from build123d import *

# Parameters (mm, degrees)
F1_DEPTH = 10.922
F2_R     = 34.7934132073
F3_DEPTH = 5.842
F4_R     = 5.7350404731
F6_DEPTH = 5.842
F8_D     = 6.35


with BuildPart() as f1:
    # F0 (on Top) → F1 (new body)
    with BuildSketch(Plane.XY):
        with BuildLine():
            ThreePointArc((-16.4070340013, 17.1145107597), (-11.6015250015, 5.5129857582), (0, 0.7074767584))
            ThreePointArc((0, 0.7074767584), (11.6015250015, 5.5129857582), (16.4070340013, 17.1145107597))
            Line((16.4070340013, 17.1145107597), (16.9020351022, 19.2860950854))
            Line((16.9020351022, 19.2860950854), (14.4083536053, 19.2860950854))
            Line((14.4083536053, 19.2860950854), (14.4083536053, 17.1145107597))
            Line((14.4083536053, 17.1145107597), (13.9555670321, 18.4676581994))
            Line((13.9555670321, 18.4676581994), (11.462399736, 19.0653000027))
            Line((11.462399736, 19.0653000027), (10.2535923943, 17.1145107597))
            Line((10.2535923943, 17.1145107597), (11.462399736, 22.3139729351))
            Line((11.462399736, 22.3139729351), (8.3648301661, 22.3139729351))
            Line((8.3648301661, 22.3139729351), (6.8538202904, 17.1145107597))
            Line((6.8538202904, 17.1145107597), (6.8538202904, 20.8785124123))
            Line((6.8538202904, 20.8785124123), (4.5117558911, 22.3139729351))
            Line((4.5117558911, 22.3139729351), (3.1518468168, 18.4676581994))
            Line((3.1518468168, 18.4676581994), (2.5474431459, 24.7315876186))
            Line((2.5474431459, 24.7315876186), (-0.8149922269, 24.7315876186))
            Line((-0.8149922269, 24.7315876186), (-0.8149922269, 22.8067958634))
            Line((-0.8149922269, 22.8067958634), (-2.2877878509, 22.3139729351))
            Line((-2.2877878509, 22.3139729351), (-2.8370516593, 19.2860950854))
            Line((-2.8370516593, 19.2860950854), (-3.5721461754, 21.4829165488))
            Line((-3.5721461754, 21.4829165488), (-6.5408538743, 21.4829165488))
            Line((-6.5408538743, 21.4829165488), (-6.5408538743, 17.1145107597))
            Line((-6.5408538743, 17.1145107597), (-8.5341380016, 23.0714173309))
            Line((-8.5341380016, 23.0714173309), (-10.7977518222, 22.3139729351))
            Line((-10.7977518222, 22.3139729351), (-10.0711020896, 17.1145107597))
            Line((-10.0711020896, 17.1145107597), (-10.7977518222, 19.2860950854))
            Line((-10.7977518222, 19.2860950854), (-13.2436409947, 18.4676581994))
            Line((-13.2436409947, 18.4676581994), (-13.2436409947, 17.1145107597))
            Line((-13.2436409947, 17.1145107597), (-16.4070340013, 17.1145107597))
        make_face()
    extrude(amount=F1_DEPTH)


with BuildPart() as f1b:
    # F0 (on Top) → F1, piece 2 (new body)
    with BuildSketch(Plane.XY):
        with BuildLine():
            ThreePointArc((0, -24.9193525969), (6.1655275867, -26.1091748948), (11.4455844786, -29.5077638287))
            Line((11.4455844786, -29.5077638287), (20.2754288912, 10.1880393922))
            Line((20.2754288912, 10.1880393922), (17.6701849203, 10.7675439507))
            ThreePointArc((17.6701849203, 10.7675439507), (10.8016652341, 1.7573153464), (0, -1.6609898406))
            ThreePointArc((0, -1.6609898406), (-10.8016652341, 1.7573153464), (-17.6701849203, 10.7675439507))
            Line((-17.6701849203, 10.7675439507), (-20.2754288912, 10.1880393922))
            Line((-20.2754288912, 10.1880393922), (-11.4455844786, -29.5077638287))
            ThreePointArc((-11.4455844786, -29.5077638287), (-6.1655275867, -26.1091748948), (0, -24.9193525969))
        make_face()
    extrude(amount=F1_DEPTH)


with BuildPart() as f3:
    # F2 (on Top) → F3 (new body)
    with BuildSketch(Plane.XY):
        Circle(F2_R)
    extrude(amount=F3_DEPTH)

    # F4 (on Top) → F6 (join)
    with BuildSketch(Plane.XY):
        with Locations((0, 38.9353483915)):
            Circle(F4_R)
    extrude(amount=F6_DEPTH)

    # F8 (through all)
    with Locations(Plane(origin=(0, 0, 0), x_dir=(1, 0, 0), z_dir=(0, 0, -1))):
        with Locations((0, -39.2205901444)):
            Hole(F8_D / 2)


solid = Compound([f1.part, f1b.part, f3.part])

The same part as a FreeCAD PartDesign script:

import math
import FreeCAD as App
import Part
import Sketcher

V = App.Vector
Q = App.Units.Quantity

doc = App.newDocument("Part")
params = doc.addObject("Spreadsheet::Sheet", "Params")
for row, (alias, value) in enumerate([
    ("pad1_length", "0.43 in"),
    ("pad2_length", "0.43 in"),
    ("pad3_length", "0.23 in"),
    ("pad4_length", "0.23 in"),
    ("sketch5_diameter", "0.25 in"),
    ("hole_diameter", "0.25 in"),
], start=1):
    params.set(f"A{row}", alias)
    params.set(f"B{row}", "=" + value)
    params.setAlias(f"B{row}", alias)

body = doc.addObject("PartDesign::Body", "Body")

sketch1 = body.newObject("Sketcher::SketchObject", "Sketch")
sketch1.AttachmentSupport = (doc.getObject("XY_Plane"), [""])
sketch1.MapMode = "FlatFace"
sketch1.addGeometry([
    Part.ArcOfCircle(Part.Circle(V(0, 17.1, 0), V(0, 0, 1), 16.4), math.radians(180), math.radians(270)),
    Part.ArcOfCircle(Part.Circle(V(0, 17.1, 0), V(0, 0, 1), 16.4), math.radians(-90), math.radians(0)),
    Part.LineSegment(V(16.4, 17.1, 0), V(16.9, 19.3, 0)),
    Part.LineSegment(V(16.9, 19.3, 0), V(14.4, 19.3, 0)),
    Part.LineSegment(V(14.4, 19.3, 0), V(14.4, 17.1, 0)),
    Part.LineSegment(V(14.4, 17.1, 0), V(14, 18.5, 0)),
    Part.LineSegment(V(14, 18.5, 0), V(11.5, 19.1, 0)),
    Part.LineSegment(V(11.5, 19.1, 0), V(10.3, 17.1, 0)),
    Part.LineSegment(V(10.3, 17.1, 0), V(11.5, 22.3, 0)),
    Part.LineSegment(V(11.5, 22.3, 0), V(8.4, 22.3, 0)),
    Part.LineSegment(V(8.4, 22.3, 0), V(6.9, 17.1, 0)),
    Part.LineSegment(V(6.9, 17.1, 0), V(6.9, 20.9, 0)),
    Part.LineSegment(V(6.9, 20.9, 0), V(4.5, 22.3, 0)),
    Part.LineSegment(V(4.5, 22.3, 0), V(3.2, 18.5, 0)),
    Part.LineSegment(V(3.2, 18.5, 0), V(2.5, 24.7, 0)),
    Part.LineSegment(V(2.5, 24.7, 0), V(-0.8, 24.7, 0)),
    Part.LineSegment(V(-0.8, 24.7, 0), V(-0.8, 22.8, 0)),
    Part.LineSegment(V(-0.8, 22.8, 0), V(-2.3, 22.3, 0)),
    Part.LineSegment(V(-2.3, 22.3, 0), V(-2.8, 19.3, 0)),
    Part.LineSegment(V(-2.8, 19.3, 0), V(-3.6, 21.5, 0)),
    Part.LineSegment(V(-3.6, 21.5, 0), V(-6.5, 21.5, 0)),
    Part.LineSegment(V(-6.5, 21.5, 0), V(-6.5, 17.1, 0)),
    Part.LineSegment(V(-6.5, 17.1, 0), V(-8.5, 23.1, 0)),
    Part.LineSegment(V(-8.5, 23.1, 0), V(-10.8, 22.3, 0)),
    Part.LineSegment(V(-10.8, 22.3, 0), V(-10.1, 17.1, 0)),
    Part.LineSegment(V(-10.1, 17.1, 0), V(-10.8, 19.3, 0)),
    Part.LineSegment(V(-10.8, 19.3, 0), V(-13.2, 18.5, 0)),
    Part.LineSegment(V(-13.2, 18.5, 0), V(-13.2, 17.1, 0)),
    Part.LineSegment(V(-13.2, 17.1, 0), V(-16.4, 17.1, 0)),
], False)
sketch1.addConstraint([
    Sketcher.Constraint("Tangent", 0, 2, 1, 1),
    Sketcher.Constraint("Coincident", 1, 2, 2, 1),
    Sketcher.Constraint("Coincident", 2, 2, 3, 1),
    Sketcher.Constraint("Coincident", 3, 2, 4, 1),
    Sketcher.Constraint("Coincident", 4, 2, 5, 1),
    Sketcher.Constraint("Coincident", 5, 2, 6, 1),
    Sketcher.Constraint("Coincident", 6, 2, 7, 1),
    Sketcher.Constraint("Coincident", 7, 2, 8, 1),
    Sketcher.Constraint("Coincident", 8, 2, 9, 1),
    Sketcher.Constraint("Coincident", 9, 2, 10, 1),
    Sketcher.Constraint("Coincident", 10, 2, 11, 1),
    Sketcher.Constraint("Coincident", 11, 2, 12, 1),
    Sketcher.Constraint("Coincident", 12, 2, 13, 1),
    Sketcher.Constraint("Coincident", 13, 2, 14, 1),
    Sketcher.Constraint("Coincident", 14, 2, 15, 1),
    Sketcher.Constraint("Coincident", 15, 2, 16, 1),
    Sketcher.Constraint("Coincident", 16, 2, 17, 1),
    Sketcher.Constraint("Coincident", 17, 2, 18, 1),
    Sketcher.Constraint("Coincident", 18, 2, 19, 1),
    Sketcher.Constraint("Coincident", 19, 2, 20, 1),
    Sketcher.Constraint("Coincident", 20, 2, 21, 1),
    Sketcher.Constraint("Coincident", 21, 2, 22, 1),
    Sketcher.Constraint("Coincident", 22, 2, 23, 1),
    Sketcher.Constraint("Coincident", 23, 2, 24, 1),
    Sketcher.Constraint("Coincident", 24, 2, 25, 1),
    Sketcher.Constraint("Coincident", 25, 2, 26, 1),
    Sketcher.Constraint("Coincident", 26, 2, 27, 1),
    Sketcher.Constraint("Coincident", 27, 2, 28, 1),
    Sketcher.Constraint("Coincident", 28, 2, 0, 1),
    Sketcher.Constraint("Horizontal", 3),
    Sketcher.Constraint("Vertical", 4),
    Sketcher.Constraint("Horizontal", 9),
    Sketcher.Constraint("Vertical", 11),
    Sketcher.Constraint("Horizontal", 15),
    Sketcher.Constraint("Vertical", 16),
    Sketcher.Constraint("Horizontal", 20),
    Sketcher.Constraint("Vertical", 21),
    Sketcher.Constraint("Vertical", 27),
    Sketcher.Constraint("Horizontal", 28),
    Sketcher.Constraint("Equal", 0, 1),
    Sketcher.Constraint("Symmetric", 1, 2, 28, 2, -2),
    Sketcher.Constraint("PointOnObject", 0, 2, -2),
    Sketcher.Constraint("Perpendicular", 5, 17),
    Sketcher.Constraint("Perpendicular", 17, 19),
    Sketcher.Constraint("Parallel", 19, 22),
    Sketcher.Constraint("Perpendicular", 22, 23),
    Sketcher.Constraint("Perpendicular", 23, 25),
    Sketcher.Constraint("Perpendicular", 25, 26),
    Sketcher.Constraint("Horizontal", 0, 3, 1, 2),
    Sketcher.Constraint("Horizontal", 1, 2, 4, 2),
    Sketcher.Constraint("Horizontal", 4, 2, 7, 2),
    Sketcher.Constraint("Horizontal", 7, 2, 10, 2),
    Sketcher.Constraint("Horizontal", 9, 2, 12, 2),
    Sketcher.Constraint("Horizontal", 5, 2, 13, 2),
    Sketcher.Constraint("Horizontal", 12, 2, 17, 2),
    Sketcher.Constraint("Horizontal", 3, 2, 18, 2),
    Sketcher.Constraint("Horizontal", 10, 2, 21, 2),
    Sketcher.Constraint("Horizontal", 17, 2, 23, 2),
    Sketcher.Constraint("Horizontal", 21, 2, 24, 2),
    Sketcher.Constraint("Horizontal", 18, 2, 25, 2),
    Sketcher.Constraint("Horizontal", 13, 2, 26, 2),
    Sketcher.Constraint("Vertical", 6, 2, 8, 2),
    Sketcher.Constraint("Vertical", 23, 2, 25, 2),
    Sketcher.Constraint("DistanceY", 11, 1, 11, 2, Q("3.764002 mm")),
    Sketcher.Constraint("DistanceX", 24, 2, -1, 1, Q("0.3965001 in")),
    Sketcher.Constraint("Radius", 0, Q("16.407034 mm")),
    Sketcher.Constraint("DistanceX", 3, 2, 3, 1, Q("2.493681 mm")),
    Sketcher.Constraint("DistanceX", 9, 2, 9, 1, Q("3.09757 mm")),
    Sketcher.Constraint("DistanceY", 16, 2, 16, 1, Q("1.924792 mm")),
    Sketcher.Constraint("DistanceX", -1, 1, 6, 2, Q("11.4624 mm")),
    Sketcher.Constraint("DistanceY", -1, 1, 6, 2, Q("19.0653 mm")),
    Sketcher.Constraint("DistanceX", 1, 2, 2, 2, Q("0.495001 mm")),
    Sketcher.Constraint("DistanceY", 18, 2, 16, 2, Q("3.520701 mm")),
    Sketcher.Constraint("DistanceY", 20, 2, 22, 2, Q("1.588501 mm")),
    Sketcher.Constraint("Distance", 7, Q("2.29495 mm")),
    Sketcher.Constraint("Distance", 8, Q("5.338129 mm")),
    Sketcher.Constraint("Distance", 10, Q("5.414569 mm")),
    Sketcher.Constraint("Distance", 14, Q("6.293021 mm")),
    Sketcher.Constraint("Distance", 17, Q("1.553062 mm")),
    Sketcher.Constraint("Distance", 23, Q("2.386979 mm")),
    Sketcher.Constraint("Distance", 26, Q("2.579188 mm")),
    Sketcher.Constraint("DistanceX", 15, 2, 15, 1, Q("3.362435 mm")),
    Sketcher.Constraint("DistanceX", 20, 2, 20, 1, Q("2.968708 mm")),
    Sketcher.Constraint("DistanceX", 28, 2, 28, 1, Q("3.163393 mm")),
    Sketcher.Constraint("DistanceY", 4, 2, 4, 1, Q("2.171584 mm")),
    Sketcher.Constraint("DistanceX", 13, 2, 12, 2, Q("1.359909 mm")),
    Sketcher.Constraint("DistanceX", 18, 2, 16, 2, Q("2.022059 mm")),
])
pad1 = body.newObject("PartDesign::Pad", "Pad")
pad1.Profile = sketch1
pad1.setExpression("Length", "Params.pad1_length")
body2 = doc.addObject("PartDesign::Body", "Body001")

sketch2 = body2.newObject("Sketcher::SketchObject", "Sketch001")
sketch2.AttachmentSupport = (doc.getObject("XY_Plane001"), [""])
sketch2.MapMode = "FlatFace"
sketch2.addGeometry([
    Part.ArcOfCircle(Part.Circle(V(0, -41.5, 0), V(0, 0, 1), 16.6), math.radians(46), math.radians(90)),
    Part.LineSegment(V(11.4, -29.5, 0), V(20.3, 10.2, 0)),
    Part.LineSegment(V(20.3, 10.2, 0), V(17.7, 10.8, 0)),
    Part.ArcOfCircle(Part.Circle(V(0, 17.1, 0), V(0, 0, 1), 18.8), math.radians(-160), math.radians(-20)),
    Part.LineSegment(V(-17.7, 10.8, 0), V(-20.3, 10.2, 0)),
    Part.LineSegment(V(-20.3, 10.2, 0), V(-11.4, -29.5, 0)),
    Part.ArcOfCircle(Part.Circle(V(0, -41.5, 0), V(0, 0, 1), 16.6), math.radians(90), math.radians(134)),
], False)
sketch2.addConstraint([
    Sketcher.Constraint("Coincident", 0, 1, 1, 1),
    Sketcher.Constraint("Coincident", 1, 2, 2, 1),
    Sketcher.Constraint("Coincident", 2, 2, 3, 2),
    Sketcher.Constraint("Coincident", 3, 1, 4, 1),
    Sketcher.Constraint("Coincident", 4, 2, 5, 1),
    Sketcher.Constraint("Coincident", 5, 2, 6, 2),
    Sketcher.Constraint("Tangent", 6, 1, 0, 2),
    Sketcher.Constraint("Equal", 0, 6),
    Sketcher.Constraint("Symmetric", 2, 2, 3, 1, -2),
    Sketcher.Constraint("Symmetric", 1, 2, 4, 2, -2),
    Sketcher.Constraint("Symmetric", 0, 1, 5, 2, -2),
    Sketcher.Constraint("PointOnObject", 6, 1, -2),
    Sketcher.Constraint("Perpendicular", 1, 2),
    Sketcher.Constraint("Radius", 3, Q("18.775501 mm")),
    Sketcher.Constraint("Radius", 0, Q("16.569452 mm")),
    Sketcher.Constraint("DistanceX", 0, 1, 2, 2, Q("6.2246 mm")),
    Sketcher.Constraint("DistanceY", -1, 1, 3, 3, Q("17.114511 mm")),
    Sketcher.Constraint("DistanceX", -1, 1, 1, 2, Q("20.275429 mm")),
    Sketcher.Constraint("DistanceY", -1, 1, 1, 2, Q("10.188039 mm")),
    Sketcher.Constraint("DistanceY", 0, 3, 2, 2, Q("52.256349 mm")),
])
pad2 = body2.newObject("PartDesign::Pad", "Pad001")
pad2.Profile = sketch2
pad2.setExpression("Length", "Params.pad2_length")
body3 = doc.addObject("PartDesign::Body", "Body002")

sketch3 = body3.newObject("Sketcher::SketchObject", "Sketch002")
sketch3.AttachmentSupport = (doc.getObject("XY_Plane002"), [""])
sketch3.MapMode = "FlatFace"
sketch3.addGeometry(Part.Circle(V(0, 0, 0), V(0, 0, 1), 35), False)
sketch3.addConstraint([
    Sketcher.Constraint("Coincident", 0, 3, -1, 1),
    Sketcher.Constraint("Diameter", 0, Q("69.586826 mm")),
])
pad3 = body3.newObject("PartDesign::Pad", "Pad002")
pad3.Profile = sketch3
pad3.setExpression("Length", "Params.pad3_length")

sketch4 = body3.newObject("Sketcher::SketchObject", "Sketch003")
sketch4.AttachmentSupport = (doc.getObject("XY_Plane002"), [""])
sketch4.MapMode = "FlatFace"
sketch4.addGeometry(Part.Circle(V(0, 39, 0), V(0, 0, 1), 6), False)
sketch4.addConstraint([
    Sketcher.Constraint("PointOnObject", 0, 3, -2),
    Sketcher.Constraint("Diameter", 0, Q("11.470081 mm")),
    Sketcher.Constraint("DistanceY", -1, 1, 0, 3, Q("38.935348 mm")),
])
pad4 = body3.newObject("PartDesign::Pad", "Pad003")
pad4.Profile = sketch4
pad4.setExpression("Length", "Params.pad4_length")

sketch5 = body3.newObject("Sketcher::SketchObject", "Sketch004")
sketch5.AttachmentSupport = (doc.getObject("XY_Plane002"), [""])
sketch5.MapMode = "FlatFace"
sketch5.addGeometry(Part.Circle(V(0, 39.2, 0), V(0, 0, 1), 3.2), False)
sketch5.addConstraint([
    Sketcher.Constraint("PointOnObject", 0, 3, -2),
    Sketcher.Constraint("Diameter", 0, Q("0.25 in")),
    Sketcher.Constraint("DistanceY", -1, 1, 0, 3, Q("39.22059 mm")),
])
sketch5.setExpression("Constraints[1]", "Params.sketch5_diameter")
doc.recompute()
hole = body3.newObject("PartDesign::Hole", "Hole")
hole.Profile = sketch5
hole.ThreadType = "None"
hole.setExpression("Diameter", "Params.hole_diameter")
hole.DepthType = "ThroughAll"
hole.Reversed = True

doc.recompute()
